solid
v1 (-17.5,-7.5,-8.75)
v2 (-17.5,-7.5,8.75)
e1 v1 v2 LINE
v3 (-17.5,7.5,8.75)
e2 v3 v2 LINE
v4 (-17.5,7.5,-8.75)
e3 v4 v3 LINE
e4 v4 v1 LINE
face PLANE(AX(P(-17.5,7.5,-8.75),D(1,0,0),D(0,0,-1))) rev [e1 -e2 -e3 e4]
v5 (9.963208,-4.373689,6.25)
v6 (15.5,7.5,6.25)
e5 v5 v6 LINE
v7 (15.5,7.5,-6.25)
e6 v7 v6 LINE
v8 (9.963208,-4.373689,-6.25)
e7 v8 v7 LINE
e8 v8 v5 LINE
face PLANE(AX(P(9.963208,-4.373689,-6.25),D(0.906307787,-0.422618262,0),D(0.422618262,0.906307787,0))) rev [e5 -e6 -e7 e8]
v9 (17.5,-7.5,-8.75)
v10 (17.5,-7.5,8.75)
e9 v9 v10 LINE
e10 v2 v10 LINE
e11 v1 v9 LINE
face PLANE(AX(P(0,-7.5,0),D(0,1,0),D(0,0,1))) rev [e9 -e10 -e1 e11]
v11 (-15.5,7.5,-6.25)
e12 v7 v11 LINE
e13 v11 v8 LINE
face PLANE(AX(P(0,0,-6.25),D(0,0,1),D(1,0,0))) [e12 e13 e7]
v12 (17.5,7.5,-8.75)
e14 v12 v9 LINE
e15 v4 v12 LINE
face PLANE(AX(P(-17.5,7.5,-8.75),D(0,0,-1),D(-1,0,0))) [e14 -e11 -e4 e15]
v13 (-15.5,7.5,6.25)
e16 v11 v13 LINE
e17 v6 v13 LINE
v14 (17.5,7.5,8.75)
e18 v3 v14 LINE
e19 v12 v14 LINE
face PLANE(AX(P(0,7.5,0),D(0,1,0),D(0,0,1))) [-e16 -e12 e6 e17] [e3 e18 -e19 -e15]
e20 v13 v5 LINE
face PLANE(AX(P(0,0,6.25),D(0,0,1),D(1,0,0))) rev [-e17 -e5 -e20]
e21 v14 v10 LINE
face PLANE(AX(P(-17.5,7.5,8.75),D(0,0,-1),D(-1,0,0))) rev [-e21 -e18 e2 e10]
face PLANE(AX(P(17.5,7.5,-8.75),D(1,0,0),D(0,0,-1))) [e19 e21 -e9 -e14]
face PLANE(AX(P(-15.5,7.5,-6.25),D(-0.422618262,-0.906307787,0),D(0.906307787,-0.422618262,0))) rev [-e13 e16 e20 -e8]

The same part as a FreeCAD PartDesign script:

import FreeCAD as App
import Part
import Sketcher
from FreeCAD import Vector
Q = App.Units.Quantity


def add_polygon(sketch, points):
    """Adds a closed chain of lines whose ends are joined by coincident constraints."""
    first, n = sketch.GeometryCount, len(points)
    for a, b in zip(points, points[1:] + points[:1]):
        sketch.addGeometry(Part.LineSegment(App.Vector(*a, 0), App.Vector(*b, 0)), False)
    for i in range(n):
        sketch.addConstraint(Sketcher.Constraint("Coincident", first + i, 2, first + (i + 1) % n, 1))

doc = App.newDocument("Part")
body = doc.addObject("PartDesign::Body", "Body")

# Sketch on XZ plane
sketch1 = body.newObject("Sketcher::SketchObject", "Sketch")
sketch1.AttachmentSupport = (doc.getObject("XZ_Plane"), [""])
sketch1.MapMode = "FlatFace"
add_polygon(sketch1, [(-17.5, -8.75), (-17.5, 8.75), (17.5, 8.75), (17.5, -8.75)])  # lines 0-3
sketch1.addConstraint(Sketcher.Constraint("Vertical", 0))
sketch1.addConstraint(Sketcher.Constraint("Horizontal", 1))
sketch1.addConstraint(Sketcher.Constraint("Vertical", 2))
sketch1.addConstraint(Sketcher.Constraint("Horizontal", 3))
sketch1.addConstraint(Sketcher.Constraint("Symmetric", 0, 2, 2, 2, -1, 1))
sketch1.addConstraint(Sketcher.Constraint("DistanceX", 1, 1, 1, 2, Q("35 mm")))
sketch1.addConstraint(Sketcher.Constraint("DistanceY", 0, 1, 0, 2, Q("17.5 mm")))
pad1 = body.newObject("PartDesign::Pad", "Pad")
pad1.Profile = sketch1
pad1.Length = 15
pad1.Midplane = True

# Sketch on XY plane
sketch2 = body.newObject("Sketcher::SketchObject", "Sketch001")
sketch2.AttachmentSupport = (doc.getObject("XY_Plane"), [""])
sketch2.MapMode = "FlatFace"
add_polygon(sketch2, [(-15.5, 7.5), (9.963208, -4.373689), (15.5, 7.5)])  # lines 0-2
sketch2.addConstraint(Sketcher.Constraint("Horizontal", 2))
sketch2.addConstraint(Sketcher.Constraint("Perpendicular", 0, 1))
sketch2.addConstraint(Sketcher.Constraint("DistanceX", 2, 2, 2, 1, Q("31 mm")))
sketch2.addConstraint(Sketcher.Constraint("Angle", 0, Q("-25 deg")))
sketch2.addConstraint(Sketcher.Constraint("DistanceX", -1, 1, 1, 2, Q("15.5 mm")))
sketch2.addConstraint(Sketcher.Constraint("DistanceY", -1, 1, 1, 2, Q("7.5 mm")))
pocket1 = body.newObject("PartDesign::Pocket", "Pocket")
pocket1.Profile = sketch2
pocket1.Length = 12.5
pocket1.Midplane = True

doc.recompute()
